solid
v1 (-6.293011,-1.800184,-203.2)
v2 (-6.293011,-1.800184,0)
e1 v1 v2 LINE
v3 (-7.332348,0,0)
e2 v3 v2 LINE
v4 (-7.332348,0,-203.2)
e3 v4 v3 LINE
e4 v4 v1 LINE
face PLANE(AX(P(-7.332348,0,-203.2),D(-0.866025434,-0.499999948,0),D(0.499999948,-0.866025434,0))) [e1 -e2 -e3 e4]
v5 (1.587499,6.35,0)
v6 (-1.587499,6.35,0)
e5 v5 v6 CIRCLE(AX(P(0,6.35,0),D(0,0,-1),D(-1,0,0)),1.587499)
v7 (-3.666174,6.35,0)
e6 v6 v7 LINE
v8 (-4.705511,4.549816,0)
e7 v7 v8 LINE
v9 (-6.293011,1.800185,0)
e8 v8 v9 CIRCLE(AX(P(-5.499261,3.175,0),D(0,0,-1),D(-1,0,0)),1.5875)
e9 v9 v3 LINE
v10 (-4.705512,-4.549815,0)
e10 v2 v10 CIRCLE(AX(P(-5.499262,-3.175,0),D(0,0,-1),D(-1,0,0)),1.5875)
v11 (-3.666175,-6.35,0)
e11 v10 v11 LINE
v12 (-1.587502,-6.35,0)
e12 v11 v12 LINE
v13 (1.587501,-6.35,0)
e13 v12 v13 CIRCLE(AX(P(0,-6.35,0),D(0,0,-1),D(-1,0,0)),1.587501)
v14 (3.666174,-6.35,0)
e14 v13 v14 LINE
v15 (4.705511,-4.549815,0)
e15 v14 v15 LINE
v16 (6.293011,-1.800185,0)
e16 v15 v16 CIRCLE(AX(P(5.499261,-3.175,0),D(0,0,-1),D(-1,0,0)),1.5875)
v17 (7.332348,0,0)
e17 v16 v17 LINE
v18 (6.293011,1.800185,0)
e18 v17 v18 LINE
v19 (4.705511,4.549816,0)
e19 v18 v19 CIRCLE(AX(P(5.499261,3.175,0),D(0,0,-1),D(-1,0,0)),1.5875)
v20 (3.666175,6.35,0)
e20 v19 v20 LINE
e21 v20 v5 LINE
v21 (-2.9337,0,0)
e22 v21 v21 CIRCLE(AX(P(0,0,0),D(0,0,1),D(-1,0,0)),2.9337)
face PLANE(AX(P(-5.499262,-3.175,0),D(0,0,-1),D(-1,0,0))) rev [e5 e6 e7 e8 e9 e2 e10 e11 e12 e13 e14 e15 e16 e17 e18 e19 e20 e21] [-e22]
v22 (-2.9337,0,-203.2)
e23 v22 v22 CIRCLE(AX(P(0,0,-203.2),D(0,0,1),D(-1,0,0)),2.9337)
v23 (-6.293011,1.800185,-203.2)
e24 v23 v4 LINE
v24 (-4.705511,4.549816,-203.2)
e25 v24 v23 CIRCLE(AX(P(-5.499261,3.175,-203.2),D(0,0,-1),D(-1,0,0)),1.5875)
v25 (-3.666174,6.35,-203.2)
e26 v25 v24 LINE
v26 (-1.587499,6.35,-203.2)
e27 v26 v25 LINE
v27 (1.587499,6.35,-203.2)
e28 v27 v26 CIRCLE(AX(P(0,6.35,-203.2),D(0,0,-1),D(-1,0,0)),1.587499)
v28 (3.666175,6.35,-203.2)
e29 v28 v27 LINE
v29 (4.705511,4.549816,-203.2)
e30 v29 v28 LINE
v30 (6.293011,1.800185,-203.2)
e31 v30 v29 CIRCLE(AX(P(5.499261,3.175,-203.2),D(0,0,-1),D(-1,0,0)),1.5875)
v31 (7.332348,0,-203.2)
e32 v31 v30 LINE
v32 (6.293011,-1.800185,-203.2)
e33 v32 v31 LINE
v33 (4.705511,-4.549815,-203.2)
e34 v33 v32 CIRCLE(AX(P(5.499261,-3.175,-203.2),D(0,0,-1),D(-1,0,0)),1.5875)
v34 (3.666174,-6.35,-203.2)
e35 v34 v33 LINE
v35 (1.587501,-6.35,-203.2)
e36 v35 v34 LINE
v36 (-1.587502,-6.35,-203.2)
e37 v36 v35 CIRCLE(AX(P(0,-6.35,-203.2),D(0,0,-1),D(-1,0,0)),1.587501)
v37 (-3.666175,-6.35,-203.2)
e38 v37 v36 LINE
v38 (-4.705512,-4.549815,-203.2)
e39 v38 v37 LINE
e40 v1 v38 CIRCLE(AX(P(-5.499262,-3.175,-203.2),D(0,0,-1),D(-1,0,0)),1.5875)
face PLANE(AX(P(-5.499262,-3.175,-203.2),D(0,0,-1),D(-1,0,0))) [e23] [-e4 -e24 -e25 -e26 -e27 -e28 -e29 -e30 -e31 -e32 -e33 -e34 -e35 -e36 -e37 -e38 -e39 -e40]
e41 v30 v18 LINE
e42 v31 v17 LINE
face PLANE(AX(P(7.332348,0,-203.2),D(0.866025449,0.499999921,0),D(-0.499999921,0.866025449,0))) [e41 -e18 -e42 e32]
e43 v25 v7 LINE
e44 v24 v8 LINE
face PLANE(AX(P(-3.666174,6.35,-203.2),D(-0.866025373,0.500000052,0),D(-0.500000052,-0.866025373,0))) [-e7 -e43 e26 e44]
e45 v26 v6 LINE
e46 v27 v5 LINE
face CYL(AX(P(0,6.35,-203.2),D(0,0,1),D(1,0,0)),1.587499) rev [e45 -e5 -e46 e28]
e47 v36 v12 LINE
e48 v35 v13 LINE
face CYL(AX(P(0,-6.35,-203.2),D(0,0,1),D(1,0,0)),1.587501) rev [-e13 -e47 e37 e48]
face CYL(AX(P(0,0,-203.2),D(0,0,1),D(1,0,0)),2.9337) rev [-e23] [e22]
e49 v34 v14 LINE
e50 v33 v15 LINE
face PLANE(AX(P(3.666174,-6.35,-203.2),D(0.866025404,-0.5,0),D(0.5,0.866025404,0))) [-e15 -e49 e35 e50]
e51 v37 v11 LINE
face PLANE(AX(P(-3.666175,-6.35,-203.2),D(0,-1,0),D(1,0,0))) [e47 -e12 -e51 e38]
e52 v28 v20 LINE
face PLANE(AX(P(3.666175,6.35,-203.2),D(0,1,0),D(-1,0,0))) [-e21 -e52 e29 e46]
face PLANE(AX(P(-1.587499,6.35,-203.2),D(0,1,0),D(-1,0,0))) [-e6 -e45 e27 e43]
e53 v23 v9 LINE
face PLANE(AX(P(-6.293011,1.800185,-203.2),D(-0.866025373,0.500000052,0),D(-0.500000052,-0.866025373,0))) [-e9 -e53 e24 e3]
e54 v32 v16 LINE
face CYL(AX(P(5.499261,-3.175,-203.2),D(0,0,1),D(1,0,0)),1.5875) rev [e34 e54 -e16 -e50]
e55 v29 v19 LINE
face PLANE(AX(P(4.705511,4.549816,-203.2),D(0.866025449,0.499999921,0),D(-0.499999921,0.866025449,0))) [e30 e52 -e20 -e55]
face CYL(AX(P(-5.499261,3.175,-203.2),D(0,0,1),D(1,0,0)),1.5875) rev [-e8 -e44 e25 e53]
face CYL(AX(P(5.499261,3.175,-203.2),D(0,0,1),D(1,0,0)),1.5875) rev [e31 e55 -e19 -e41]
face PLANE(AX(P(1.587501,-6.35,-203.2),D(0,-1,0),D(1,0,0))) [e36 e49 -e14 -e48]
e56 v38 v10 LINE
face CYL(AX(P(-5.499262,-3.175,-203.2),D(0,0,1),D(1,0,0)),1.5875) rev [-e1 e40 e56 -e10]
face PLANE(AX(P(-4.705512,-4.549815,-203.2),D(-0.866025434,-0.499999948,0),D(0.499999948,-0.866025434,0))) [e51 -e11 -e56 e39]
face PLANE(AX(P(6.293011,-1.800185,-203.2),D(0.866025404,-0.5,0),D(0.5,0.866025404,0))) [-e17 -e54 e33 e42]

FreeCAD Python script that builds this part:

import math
import FreeCAD as App
import Part
import Sketcher
from FreeCAD import Vector
Q = App.Units.Quantity

doc = App.newDocument("Part")
body = doc.addObject("PartDesign::Body", "Body")

# Sketch on XY plane
sketch1 = doc.addObject("Sketcher::SketchObject", "Sketch")
body.addObject(sketch1)
sketch1.AttachmentSupport = (doc.XY_Plane, [""])
sketch1.MapMode = "FlatFace"
sketch1.addGeometry(Part.LineSegment(Vector(-4.7, -4.5, 0), Vector(-3.7, -6.3, 0)), False)
sketch1.addGeometry(Part.LineSegment(Vector(-3.7, -6.3, 0), Vector(-1.6, -6.3, 0)), False)
sketch1.addGeometry(Part.ArcOfCircle(Part.Circle(Vector(0, -6.4, 0), Vector(0, 0, 1), 1.6), math.radians(0), math.radians(180)), False)
sketch1.addGeometry(Part.LineSegment(Vector(1.6, -6.3, 0), Vector(3.7, -6.3, 0)), False)
sketch1.addGeometry(Part.LineSegment(Vector(3.7, -6.3, 0), Vector(4.7, -4.5, 0)), False)
sketch1.addGeometry(Part.ArcOfCircle(Part.Circle(Vector(5.5, -3.2, 0), Vector(0, 0, 1), 1.6), math.radians(60), math.radians(240)), False)
sketch1.addGeometry(Part.LineSegment(Vector(6.3, -1.8, 0), Vector(7.3, 0, 0)), False)
sketch1.addGeometry(Part.LineSegment(Vector(7.3, 0, 0), Vector(6.3, 1.8, 0)), False)
sketch1.addGeometry(Part.ArcOfCircle(Part.Circle(Vector(5.5, 3.2, 0), Vector(0, 0, 1), 1.6), math.radians(120), math.radians(300)), False)
sketch1.addGeometry(Part.LineSegment(Vector(4.7, 4.5, 0), Vector(3.7, 6.4, 0)), False)
sketch1.addGeometry(Part.LineSegment(Vector(3.7, 6.4, 0), Vector(1.6, 6.4, 0)), False)
sketch1.addGeometry(Part.ArcOfCircle(Part.Circle(Vector(0, 6.4, 0), Vector(0, 0, 1), 1.6), math.radians(-180), math.radians(0)), False)
sketch1.addGeometry(Part.LineSegment(Vector(-1.6, 6.4, 0), Vector(-3.7, 6.4, 0)), False)
sketch1.addGeometry(Part.LineSegment(Vector(-3.7, 6.4, 0), Vector(-4.7, 4.5, 0)), False)
sketch1.addGeometry(Part.ArcOfCircle(Part.Circle(Vector(-5.5, 3.2, 0), Vector(0, 0, 1), 1.6), math.radians(-120), math.radians(60)), False)
sketch1.addGeometry(Part.LineSegment(Vector(-6.3, 1.8, 0), Vector(-7.3, 0, 0)), False)
sketch1.addGeometry(Part.LineSegment(Vector(-7.3, 0, 0), Vector(-6.3, -1.8, 0)), False)
sketch1.addGeometry(Part.ArcOfCircle(Part.Circle(Vector(-5.5, -3.2, 0), Vector(0, 0, 1), 1.6), math.radians(-60), math.radians(120)), False)
sketch1.addGeometry(Part.Circle(Vector(0, 0, 0), Vector(0, 0, 1), 2.9), False)
sketch1.addConstraint(Sketcher.Constraint("Coincident", 0, 2, 1, 1))
sketch1.addConstraint(Sketcher.Constraint("Coincident", 1, 2, 2, 2))
sketch1.addConstraint(Sketcher.Constraint("Coincident", 2, 1, 3, 1))
sketch1.addConstraint(Sketcher.Constraint("Coincident", 3, 2, 4, 1))
sketch1.addConstraint(Sketcher.Constraint("Coincident", 4, 2, 5, 2))
sketch1.addConstraint(Sketcher.Constraint("Coincident", 5, 1, 6, 1))
sketch1.addConstraint(Sketcher.Constraint("Coincident", 6, 2, 7, 1))
sketch1.addConstraint(Sketcher.Constraint("Coincident", 7, 2, 8, 2))
sketch1.addConstraint(Sketcher.Constraint("Coincident", 8, 1, 9, 1))
sketch1.addConstraint(Sketcher.Constraint("Coincident", 9, 2, 10, 1))
sketch1.addConstraint(Sketcher.Constraint("Coincident", 10, 2, 11, 2))
sketch1.addConstraint(Sketcher.Constraint("Coincident", 11, 1, 12, 1))
sketch1.addConstraint(Sketcher.Constraint("Coincident", 12, 2, 13, 1))
sketch1.addConstraint(Sketcher.Constraint("Coincident", 13, 2, 14, 2))
sketch1.addConstraint(Sketcher.Constraint("Coincident", 14, 1, 15, 1))
sketch1.addConstraint(Sketcher.Constraint("Coincident", 15, 2, 16, 1))
sketch1.addConstraint(Sketcher.Constraint("Coincident", 16, 2, 17, 2))
sketch1.addConstraint(Sketcher.Constraint("Coincident", 17, 1, 0, 1))
sketch1.addConstraint(Sketcher.Constraint("Horizontal", 1))
sketch1.addConstraint(Sketcher.Constraint("Horizontal", 3))
sketch1.addConstraint(Sketcher.Constraint("Horizontal", 10))
sketch1.addConstraint(Sketcher.Constraint("Horizontal", 12))
sketch1.addConstraint(Sketcher.Constraint("Coincident", 18, 3, -1, 1))
sketch1.addConstraint(Sketcher.Constraint("Equal", 2, 5))
sketch1.addConstraint(Sketcher.Constraint("Equal", 5, 8))
sketch1.addConstraint(Sketcher.Constraint("Equal", 8, 11))
sketch1.addConstraint(Sketcher.Constraint("Equal", 11, 14))
sketch1.addConstraint(Sketcher.Constraint("Equal", 14, 17))
sketch1.addConstraint(Sketcher.Constraint("Symmetric", 2, 3, 11, 3, -1, 1))
sketch1.addConstraint(Sketcher.Constraint("Symmetric", 5, 3, 14, 3, -1, 1))
sketch1.addConstraint(Sketcher.Constraint("Symmetric", 8, 3, 17, 3, -1, 1))
sketch1.addConstraint(Sketcher.Constraint("Symmetric", 0, 2, 9, 2, -1, 1))
sketch1.addConstraint(Sketcher.Constraint("Symmetric", 3, 2, 12, 2, -1, 1))
sketch1.addConstraint(Sketcher.Constraint("Symmetric", 6, 2, 15, 2, -1, 1))
sketch1.addConstraint(Sketcher.Constraint("Symmetric", 8, 3, 14, 3, -2))
sketch1.addConstraint(Sketcher.Constraint("Symmetric", 1, 2, 2, 1, -2))
sketch1.addConstraint(Sketcher.Constraint("PointOnObject", 6, 2, -1))
sketch1.addConstraint(Sketcher.Constraint("Parallel", 4, 6))
sketch1.addConstraint(Sketcher.Constraint("Parallel", 0, 7))
sketch1.addConstraint(Sketcher.Constraint("Parallel", 7, 9))
sketch1.addConstraint(Sketcher.Constraint("Parallel", 6, 13))
sketch1.addConstraint(Sketcher.Constraint("Parallel", 13, 15))
sketch1.addConstraint(Sketcher.Constraint("Parallel", 9, 16))
sketch1.addConstraint(Sketcher.Constraint("Horizontal", 2, 3, 0, 2))
sketch1.addConstraint(Sketcher.Constraint("Horizontal", 8, 1, 13, 2))
sketch1.addConstraint(Sketcher.Constraint("Horizontal", 7, 2, 14, 1))
sketch1.addConstraint(Sketcher.Constraint("Equal", 4, 6))
sketch1.addConstraint(Sketcher.Constraint("Diameter", 18, Q("0.231 in")))
sketch1.addConstraint(Sketcher.Constraint("Angle", 0, Q("-60.000003 deg")))
sketch1.addConstraint(Sketcher.Constraint("Radius", 2, Q("0.0625 in")))
sketch1.addConstraint(Sketcher.Constraint("DistanceY", 2, 3, 11, 3, Q("0.5 in")))
sketch1.addConstraint(Sketcher.Constraint("DistanceY", 5, 3, 8, 3, Q("0.25 in")))
sketch1.addConstraint(Sketcher.Constraint("DistanceX", 4, 2, 5, 3, Q("0.03125 in")))
sketch1.addConstraint(Sketcher.Constraint("DistanceX", 1, 1, 1, 2, Q("2.078673 mm")))
pad1 = doc.addObject("PartDesign::Pad", "Pad")
body.addObject(pad1)
pad1.Profile = sketch1
pad1.Length = Q("8 in")
pad1.Reversed = True

doc.recompute()
